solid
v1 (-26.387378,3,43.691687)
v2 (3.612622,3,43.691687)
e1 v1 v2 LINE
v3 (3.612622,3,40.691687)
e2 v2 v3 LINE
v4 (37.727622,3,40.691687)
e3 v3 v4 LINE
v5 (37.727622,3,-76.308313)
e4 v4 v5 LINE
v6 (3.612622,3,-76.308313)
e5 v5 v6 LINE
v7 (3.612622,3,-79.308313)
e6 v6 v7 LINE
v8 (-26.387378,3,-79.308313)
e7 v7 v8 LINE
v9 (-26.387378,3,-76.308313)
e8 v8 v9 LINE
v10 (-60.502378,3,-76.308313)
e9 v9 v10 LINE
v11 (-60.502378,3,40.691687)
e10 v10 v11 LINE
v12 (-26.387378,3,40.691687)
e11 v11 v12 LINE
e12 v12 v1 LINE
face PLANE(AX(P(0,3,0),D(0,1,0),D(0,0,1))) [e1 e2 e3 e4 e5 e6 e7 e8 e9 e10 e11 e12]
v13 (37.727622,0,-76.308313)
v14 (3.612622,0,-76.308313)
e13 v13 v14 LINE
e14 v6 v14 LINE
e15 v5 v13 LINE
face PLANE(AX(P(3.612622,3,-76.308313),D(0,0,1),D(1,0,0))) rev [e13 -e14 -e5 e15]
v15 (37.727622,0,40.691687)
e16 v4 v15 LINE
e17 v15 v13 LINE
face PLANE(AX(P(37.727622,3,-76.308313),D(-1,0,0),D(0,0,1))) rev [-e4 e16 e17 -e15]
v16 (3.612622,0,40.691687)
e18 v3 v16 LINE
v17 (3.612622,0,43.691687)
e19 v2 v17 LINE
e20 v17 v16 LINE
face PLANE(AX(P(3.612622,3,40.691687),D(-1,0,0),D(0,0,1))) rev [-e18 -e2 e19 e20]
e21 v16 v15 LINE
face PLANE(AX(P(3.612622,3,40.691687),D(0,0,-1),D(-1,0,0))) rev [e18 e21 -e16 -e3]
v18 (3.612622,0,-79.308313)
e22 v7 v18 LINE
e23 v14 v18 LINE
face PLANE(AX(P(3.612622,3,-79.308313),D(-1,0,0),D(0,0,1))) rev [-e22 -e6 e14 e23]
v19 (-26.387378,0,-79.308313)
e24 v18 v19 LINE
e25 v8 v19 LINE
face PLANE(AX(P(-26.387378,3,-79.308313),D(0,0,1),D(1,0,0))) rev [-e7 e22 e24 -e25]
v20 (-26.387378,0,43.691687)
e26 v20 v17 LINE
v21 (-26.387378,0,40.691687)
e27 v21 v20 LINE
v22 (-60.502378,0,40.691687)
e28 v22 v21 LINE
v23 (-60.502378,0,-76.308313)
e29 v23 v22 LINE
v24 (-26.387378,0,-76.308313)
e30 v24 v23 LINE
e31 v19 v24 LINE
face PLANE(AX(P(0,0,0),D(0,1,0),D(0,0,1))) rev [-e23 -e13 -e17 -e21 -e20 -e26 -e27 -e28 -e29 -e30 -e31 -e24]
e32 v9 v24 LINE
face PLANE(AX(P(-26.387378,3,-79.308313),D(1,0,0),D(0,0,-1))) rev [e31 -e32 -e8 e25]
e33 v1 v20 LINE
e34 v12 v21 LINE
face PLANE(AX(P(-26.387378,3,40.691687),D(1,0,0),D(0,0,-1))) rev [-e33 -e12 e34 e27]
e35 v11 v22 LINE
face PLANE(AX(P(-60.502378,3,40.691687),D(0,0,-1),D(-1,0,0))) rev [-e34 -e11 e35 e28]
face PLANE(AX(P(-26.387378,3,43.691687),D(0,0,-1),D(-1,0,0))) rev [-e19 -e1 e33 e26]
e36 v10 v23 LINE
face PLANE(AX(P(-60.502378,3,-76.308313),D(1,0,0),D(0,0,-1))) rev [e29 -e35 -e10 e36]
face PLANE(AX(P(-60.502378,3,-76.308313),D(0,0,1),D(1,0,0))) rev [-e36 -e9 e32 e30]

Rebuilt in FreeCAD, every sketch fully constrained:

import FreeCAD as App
import Part
import Sketcher

V = App.Vector
Q = App.Units.Quantity

doc = App.newDocument("Part")
body = doc.addObject("PartDesign::Body", "Body")

# Sketch on XZ plane
sketch1 = body.newObject("Sketcher::SketchObject", "Sketch")
sketch1.AttachmentSupport = (doc.getObject("XZ_Plane"), [""])
sketch1.MapMode = "FlatFace"
sketch1.addGeometry([
    Part.LineSegment(V(-26.4, -76.3, 0), V(-60.5, -76.3, 0)),  # 0
    Part.LineSegment(V(-60.5, -76.3, 0), V(-60.5, 40.7, 0)),  # 1
    Part.LineSegment(V(-60.5, 40.7, 0), V(-26.4, 40.7, 0)),  # 2
    Part.LineSegment(V(-26.4, 40.7, 0), V(-26.4, 43.7, 0)),  # 3
    Part.LineSegment(V(-26.4, 43.7, 0), V(3.6, 43.7, 0)),  # 4
    Part.LineSegment(V(3.6, 43.7, 0), V(3.6, 40.7, 0)),  # 5
    Part.LineSegment(V(3.6, 40.7, 0), V(37.7, 40.7, 0)),  # 6
    Part.LineSegment(V(37.7, 40.7, 0), V(37.7, -76.3, 0)),  # 7
    Part.LineSegment(V(37.7, -76.3, 0), V(3.6, -76.3, 0)),  # 8
    Part.LineSegment(V(3.6, -76.3, 0), V(3.6, -79.3, 0)),  # 9
    Part.LineSegment(V(3.6, -79.3, 0), V(-26.4, -79.3, 0)),  # 10
    Part.LineSegment(V(-26.4, -79.3, 0), V(-26.4, -76.3, 0)),  # 11
], False)
sketch1.addConstraint([
    Sketcher.Constraint("Coincident", 0, 2, 1, 1),
    Sketcher.Constraint("Coincident", 1, 2, 2, 1),
    Sketcher.Constraint("Coincident", 2, 2, 3, 1),
    Sketcher.Constraint("Coincident", 3, 2, 4, 1),
    Sketcher.Constraint("Coincident", 4, 2, 5, 1),
    Sketcher.Constraint("Coincident", 5, 2, 6, 1),
    Sketcher.Constraint("Coincident", 6, 2, 7, 1),
    Sketcher.Constraint("Coincident", 7, 2, 8, 1),
    Sketcher.Constraint("Coincident", 8, 2, 9, 1),
    Sketcher.Constraint("Coincident", 9, 2, 10, 1),
    Sketcher.Constraint("Coincident", 10, 2, 11, 1),
    Sketcher.Constraint("Coincident", 11, 2, 0, 1),
    Sketcher.Constraint("Horizontal", 0),
    Sketcher.Constraint("Vertical", 1),
    Sketcher.Constraint("Horizontal", 2),
    Sketcher.Constraint("Vertical", 3),
    Sketcher.Constraint("Horizontal", 4),
    Sketcher.Constraint("Vertical", 5),
    Sketcher.Constraint("Horizontal", 6),
    Sketcher.Constraint("Vertical", 7),
    Sketcher.Constraint("Horizontal", 8),
    Sketcher.Constraint("Vertical", 9),
    Sketcher.Constraint("Horizontal", 10),
    Sketcher.Constraint("Vertical", 11),
    Sketcher.Constraint("Horizontal", 2, 2, 5, 2),
    Sketcher.Constraint("Horizontal", 0, 2, 7, 2),
    Sketcher.Constraint("Vertical", 5, 2, 8, 2),
    Sketcher.Constraint("Vertical", 3, 2, 10, 2),
    Sketcher.Constraint("Equal", 2, 6),
    Sketcher.Constraint("Equal", 5, 9),
    Sketcher.Constraint("DistanceX", 4, 1, 4, 2, Q("30 mm")),
    Sketcher.Constraint("DistanceY", 1, 1, 1, 2, Q("117 mm")),
    Sketcher.Constraint("DistanceY", 3, 1, 3, 2, Q("3 mm")),
    Sketcher.Constraint("DistanceX", 0, 2, 0, 1, Q("34.115 mm")),
    Sketcher.Constraint("DistanceX", 0, 2, -1, 1, Q("60.502378 mm")),
    Sketcher.Constraint("DistanceY", 0, 2, -1, 1, Q("76.308313 mm")),
])
pad1 = body.newObject("PartDesign::Pad", "Pad")
pad1.Profile = sketch1
pad1.Length = 3
pad1.Reversed = True

doc.recompute()
